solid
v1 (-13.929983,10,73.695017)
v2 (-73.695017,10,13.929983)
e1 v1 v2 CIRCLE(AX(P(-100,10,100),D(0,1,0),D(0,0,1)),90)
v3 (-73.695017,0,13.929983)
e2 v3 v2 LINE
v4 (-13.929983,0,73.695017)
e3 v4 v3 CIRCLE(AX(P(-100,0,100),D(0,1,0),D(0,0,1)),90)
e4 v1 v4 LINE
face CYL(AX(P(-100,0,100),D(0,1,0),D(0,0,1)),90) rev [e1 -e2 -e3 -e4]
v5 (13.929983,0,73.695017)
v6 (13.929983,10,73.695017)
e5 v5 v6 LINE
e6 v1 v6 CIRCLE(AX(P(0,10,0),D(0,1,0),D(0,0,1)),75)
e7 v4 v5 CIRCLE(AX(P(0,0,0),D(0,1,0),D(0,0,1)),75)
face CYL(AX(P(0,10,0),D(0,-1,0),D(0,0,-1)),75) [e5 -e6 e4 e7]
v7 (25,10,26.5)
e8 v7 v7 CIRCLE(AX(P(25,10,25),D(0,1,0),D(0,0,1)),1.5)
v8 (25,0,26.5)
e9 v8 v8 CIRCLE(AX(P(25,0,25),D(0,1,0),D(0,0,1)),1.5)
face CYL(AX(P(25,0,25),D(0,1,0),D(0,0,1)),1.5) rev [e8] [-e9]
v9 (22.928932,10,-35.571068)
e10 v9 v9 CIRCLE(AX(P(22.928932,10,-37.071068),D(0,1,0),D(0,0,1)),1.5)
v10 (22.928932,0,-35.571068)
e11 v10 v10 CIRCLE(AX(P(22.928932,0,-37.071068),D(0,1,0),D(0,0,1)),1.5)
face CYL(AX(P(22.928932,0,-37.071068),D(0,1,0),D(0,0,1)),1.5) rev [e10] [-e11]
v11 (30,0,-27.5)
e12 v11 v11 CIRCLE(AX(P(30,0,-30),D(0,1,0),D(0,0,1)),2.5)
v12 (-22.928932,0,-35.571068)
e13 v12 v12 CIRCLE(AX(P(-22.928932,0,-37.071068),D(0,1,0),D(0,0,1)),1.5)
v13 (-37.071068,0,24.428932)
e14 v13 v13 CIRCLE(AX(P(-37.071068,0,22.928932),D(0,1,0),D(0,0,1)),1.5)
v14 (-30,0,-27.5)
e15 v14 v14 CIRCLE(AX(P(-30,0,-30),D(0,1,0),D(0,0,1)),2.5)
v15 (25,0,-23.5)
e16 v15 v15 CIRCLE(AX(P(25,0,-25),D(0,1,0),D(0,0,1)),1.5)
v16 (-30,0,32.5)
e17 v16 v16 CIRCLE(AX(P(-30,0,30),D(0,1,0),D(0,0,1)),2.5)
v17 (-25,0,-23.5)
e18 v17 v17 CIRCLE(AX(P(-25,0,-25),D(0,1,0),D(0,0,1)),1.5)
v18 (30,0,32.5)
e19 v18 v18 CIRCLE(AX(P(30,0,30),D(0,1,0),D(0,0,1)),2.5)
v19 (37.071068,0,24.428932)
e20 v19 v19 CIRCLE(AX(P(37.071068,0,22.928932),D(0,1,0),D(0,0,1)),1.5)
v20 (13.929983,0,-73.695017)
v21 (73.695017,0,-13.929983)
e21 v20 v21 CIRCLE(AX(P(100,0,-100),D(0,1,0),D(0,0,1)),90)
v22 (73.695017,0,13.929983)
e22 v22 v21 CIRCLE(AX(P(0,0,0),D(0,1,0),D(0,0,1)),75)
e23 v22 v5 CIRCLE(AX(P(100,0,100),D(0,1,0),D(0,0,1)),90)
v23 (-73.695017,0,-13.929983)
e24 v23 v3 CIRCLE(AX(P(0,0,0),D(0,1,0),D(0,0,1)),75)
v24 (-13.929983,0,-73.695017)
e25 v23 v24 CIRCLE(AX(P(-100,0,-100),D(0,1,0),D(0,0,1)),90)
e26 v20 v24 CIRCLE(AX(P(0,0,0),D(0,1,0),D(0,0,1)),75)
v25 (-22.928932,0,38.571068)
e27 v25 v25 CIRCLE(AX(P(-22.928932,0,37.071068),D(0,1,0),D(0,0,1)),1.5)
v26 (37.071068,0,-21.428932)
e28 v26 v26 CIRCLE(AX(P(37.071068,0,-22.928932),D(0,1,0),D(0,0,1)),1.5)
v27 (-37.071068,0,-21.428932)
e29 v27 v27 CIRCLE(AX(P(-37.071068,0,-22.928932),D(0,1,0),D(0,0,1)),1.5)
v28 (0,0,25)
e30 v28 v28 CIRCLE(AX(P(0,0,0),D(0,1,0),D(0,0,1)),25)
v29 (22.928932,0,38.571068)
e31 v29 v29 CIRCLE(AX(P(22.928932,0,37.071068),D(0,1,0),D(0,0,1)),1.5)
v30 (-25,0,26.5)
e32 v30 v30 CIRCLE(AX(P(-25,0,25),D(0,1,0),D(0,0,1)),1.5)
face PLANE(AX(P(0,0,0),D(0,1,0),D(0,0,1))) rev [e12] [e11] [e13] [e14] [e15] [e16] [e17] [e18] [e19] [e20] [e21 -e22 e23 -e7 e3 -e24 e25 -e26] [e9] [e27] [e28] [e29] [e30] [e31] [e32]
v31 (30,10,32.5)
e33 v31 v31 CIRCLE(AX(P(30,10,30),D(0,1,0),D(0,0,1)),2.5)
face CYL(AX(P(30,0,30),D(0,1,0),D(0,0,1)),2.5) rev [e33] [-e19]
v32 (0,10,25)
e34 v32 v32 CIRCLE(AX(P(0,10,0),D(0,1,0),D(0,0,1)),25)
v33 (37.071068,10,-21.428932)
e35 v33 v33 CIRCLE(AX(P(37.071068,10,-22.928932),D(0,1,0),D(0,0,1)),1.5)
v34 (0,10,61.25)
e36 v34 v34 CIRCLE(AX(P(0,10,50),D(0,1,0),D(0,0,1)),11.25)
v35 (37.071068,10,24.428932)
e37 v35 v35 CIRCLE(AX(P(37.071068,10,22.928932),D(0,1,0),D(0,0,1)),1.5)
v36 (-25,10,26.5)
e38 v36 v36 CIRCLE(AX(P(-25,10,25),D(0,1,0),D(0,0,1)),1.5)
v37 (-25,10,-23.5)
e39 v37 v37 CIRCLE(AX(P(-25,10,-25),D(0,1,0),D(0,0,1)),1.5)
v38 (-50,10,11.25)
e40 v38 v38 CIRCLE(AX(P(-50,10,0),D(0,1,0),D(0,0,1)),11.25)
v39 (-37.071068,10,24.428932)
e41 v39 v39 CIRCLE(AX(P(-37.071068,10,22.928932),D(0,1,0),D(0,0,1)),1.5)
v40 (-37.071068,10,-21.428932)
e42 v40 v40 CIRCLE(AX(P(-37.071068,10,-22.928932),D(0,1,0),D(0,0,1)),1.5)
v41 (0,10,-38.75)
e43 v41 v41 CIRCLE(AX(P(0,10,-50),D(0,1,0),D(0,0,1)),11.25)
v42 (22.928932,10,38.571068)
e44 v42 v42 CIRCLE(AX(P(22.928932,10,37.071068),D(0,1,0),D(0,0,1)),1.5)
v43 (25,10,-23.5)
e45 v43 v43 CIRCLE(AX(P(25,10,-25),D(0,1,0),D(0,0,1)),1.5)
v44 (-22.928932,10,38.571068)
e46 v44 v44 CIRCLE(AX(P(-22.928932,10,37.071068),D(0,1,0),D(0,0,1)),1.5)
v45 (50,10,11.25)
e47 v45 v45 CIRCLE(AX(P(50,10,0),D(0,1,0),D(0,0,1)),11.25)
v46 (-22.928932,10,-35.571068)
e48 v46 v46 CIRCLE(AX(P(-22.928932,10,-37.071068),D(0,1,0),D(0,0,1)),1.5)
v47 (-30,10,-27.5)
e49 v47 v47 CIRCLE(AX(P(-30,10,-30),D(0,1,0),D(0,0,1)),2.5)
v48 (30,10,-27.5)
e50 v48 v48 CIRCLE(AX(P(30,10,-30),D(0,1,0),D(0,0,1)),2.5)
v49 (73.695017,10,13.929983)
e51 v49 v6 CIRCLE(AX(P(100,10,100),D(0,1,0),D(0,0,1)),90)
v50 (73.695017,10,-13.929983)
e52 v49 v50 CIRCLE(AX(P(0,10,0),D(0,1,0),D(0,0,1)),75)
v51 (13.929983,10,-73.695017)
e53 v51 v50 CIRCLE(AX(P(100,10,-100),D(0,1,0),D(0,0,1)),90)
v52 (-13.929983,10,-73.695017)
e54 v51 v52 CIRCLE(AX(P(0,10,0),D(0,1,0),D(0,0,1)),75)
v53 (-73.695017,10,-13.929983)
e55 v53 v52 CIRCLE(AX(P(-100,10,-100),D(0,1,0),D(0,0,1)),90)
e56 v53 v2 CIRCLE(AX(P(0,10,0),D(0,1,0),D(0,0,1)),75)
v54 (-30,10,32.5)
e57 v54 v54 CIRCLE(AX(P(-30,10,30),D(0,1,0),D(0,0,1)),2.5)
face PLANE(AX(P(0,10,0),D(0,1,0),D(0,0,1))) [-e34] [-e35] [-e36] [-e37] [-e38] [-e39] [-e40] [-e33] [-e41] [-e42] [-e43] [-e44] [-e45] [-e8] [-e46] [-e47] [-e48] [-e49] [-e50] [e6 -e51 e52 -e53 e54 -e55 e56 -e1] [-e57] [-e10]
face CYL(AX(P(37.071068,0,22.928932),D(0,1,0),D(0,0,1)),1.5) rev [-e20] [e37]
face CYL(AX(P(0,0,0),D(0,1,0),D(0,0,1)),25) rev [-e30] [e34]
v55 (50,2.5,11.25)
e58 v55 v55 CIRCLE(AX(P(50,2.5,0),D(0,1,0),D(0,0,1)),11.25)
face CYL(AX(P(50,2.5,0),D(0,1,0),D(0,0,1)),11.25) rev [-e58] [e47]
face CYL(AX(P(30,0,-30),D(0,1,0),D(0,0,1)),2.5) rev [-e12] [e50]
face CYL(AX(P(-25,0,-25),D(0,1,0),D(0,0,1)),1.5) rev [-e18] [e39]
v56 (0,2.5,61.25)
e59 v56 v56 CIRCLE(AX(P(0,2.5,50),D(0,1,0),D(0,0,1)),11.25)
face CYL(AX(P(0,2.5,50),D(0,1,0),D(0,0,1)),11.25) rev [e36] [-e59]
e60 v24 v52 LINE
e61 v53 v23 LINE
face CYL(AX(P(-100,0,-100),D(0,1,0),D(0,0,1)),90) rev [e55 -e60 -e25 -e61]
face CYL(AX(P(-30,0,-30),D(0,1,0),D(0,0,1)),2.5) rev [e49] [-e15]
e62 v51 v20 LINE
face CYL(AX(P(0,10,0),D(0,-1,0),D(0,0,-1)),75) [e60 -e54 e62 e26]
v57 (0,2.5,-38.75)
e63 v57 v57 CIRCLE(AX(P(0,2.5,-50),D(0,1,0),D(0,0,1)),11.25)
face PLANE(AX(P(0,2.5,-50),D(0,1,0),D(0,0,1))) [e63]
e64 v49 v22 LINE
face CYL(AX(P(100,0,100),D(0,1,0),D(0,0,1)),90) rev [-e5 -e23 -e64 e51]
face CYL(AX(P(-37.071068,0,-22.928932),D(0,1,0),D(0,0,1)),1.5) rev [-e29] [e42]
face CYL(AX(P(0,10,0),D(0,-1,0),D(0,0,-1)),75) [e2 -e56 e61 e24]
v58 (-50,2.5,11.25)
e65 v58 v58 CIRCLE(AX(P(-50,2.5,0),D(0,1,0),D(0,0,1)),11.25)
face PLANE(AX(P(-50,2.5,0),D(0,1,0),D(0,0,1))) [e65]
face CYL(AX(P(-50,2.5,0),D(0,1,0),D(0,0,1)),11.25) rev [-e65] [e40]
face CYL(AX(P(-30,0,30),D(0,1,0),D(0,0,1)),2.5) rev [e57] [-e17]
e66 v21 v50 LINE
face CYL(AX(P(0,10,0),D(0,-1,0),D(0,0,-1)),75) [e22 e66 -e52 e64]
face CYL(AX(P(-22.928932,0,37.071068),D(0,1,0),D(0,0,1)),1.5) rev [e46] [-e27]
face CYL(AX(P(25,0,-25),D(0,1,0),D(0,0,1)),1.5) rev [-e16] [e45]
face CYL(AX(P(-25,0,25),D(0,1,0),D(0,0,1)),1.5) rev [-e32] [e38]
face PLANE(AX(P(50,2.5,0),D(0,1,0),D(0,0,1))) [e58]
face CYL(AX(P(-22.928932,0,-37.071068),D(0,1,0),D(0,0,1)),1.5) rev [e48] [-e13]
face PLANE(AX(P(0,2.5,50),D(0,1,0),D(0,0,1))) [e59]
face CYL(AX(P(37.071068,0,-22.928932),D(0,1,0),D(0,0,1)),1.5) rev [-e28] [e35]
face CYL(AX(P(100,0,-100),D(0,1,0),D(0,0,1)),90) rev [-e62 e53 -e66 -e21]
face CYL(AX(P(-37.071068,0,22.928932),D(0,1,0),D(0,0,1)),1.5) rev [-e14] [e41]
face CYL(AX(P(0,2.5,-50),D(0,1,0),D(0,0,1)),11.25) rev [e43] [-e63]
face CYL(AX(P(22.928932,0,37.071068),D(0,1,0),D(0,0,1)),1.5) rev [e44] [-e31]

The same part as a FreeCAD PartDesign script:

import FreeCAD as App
import Part
import Sketcher
from FreeCAD import Vector

doc = App.newDocument("Part")
params = doc.addObject("Spreadsheet::Sheet", "Params")
for row, (alias, value) in enumerate([
    ("sketch1_diameter", "150 mm"),
    ("pad1_length", "10 mm"),
    ("sketch2_diameter", "180 mm"),
    ("pocket1_length", "10 mm"),
    ("sketch3_diameter", "5 mm"),
    ("sketch3_diameter2", "50 mm"),
    ("sketch3_diameter3", "3 mm"),
    ("pocket2_length", "10 mm"),
    ("sketch4_diameter", "3 mm"),
    ("pocket3_length", "10 mm"),
    ("sketch5_diameter", "22.5 mm"),
    ("pocket4_length", "7.5 mm"),
], start=1):
    params.set(f"A{row}", alias)
    params.set(f"B{row}", "=" + value)
    params.setAlias(f"B{row}", alias)

body = doc.addObject("PartDesign::Body", "Body")

# Sketch on XZ plane
sketch1 = body.newObject("Sketcher::SketchObject", "Sketch")
sketch1.AttachmentSupport = (doc.getObject("XZ_Plane"), [""])
sketch1.MapMode = "FlatFace"
sketch1.addGeometry(Part.Circle(Vector(0, 0, 0), Vector(0, 0, 1), 75), False)
sketch1.addConstraint([
    Sketcher.Constraint("Coincident", 0, 3, -1, 1),
    Sketcher.Constraint("Diameter", 0, 150.0),
])
sketch1.setExpression("Constraints[1]", "Params.sketch1_diameter")
pad1 = body.newObject("PartDesign::Pad", "Pad")
pad1.Profile = sketch1
pad1.setExpression("Length", "Params.pad1_length")
pad1.Reversed = True

# Sketch on XZ plane
sketch2 = body.newObject("Sketcher::SketchObject", "Sketch001")
sketch2.AttachmentSupport = (doc.getObject("XZ_Plane"), [""])
sketch2.MapMode = "FlatFace"
sketch2.AttachmentOffset = App.Placement(Vector(0, 0, -10), App.Rotation())
sketch2.addGeometry([
    Part.Circle(Vector(-100, -100, 0), Vector(0, 0, 1), 90),
    Part.Circle(Vector(100, -100, 0), Vector(0, 0, 1), 90),
    Part.Circle(Vector(100, 100, 0), Vector(0, 0, 1), 90),
    Part.Circle(Vector(-100, 100, 0), Vector(0, 0, 1), 90),
], False)
sketch2.addConstraint([
    Sketcher.Constraint("Equal", 0, 1),
    Sketcher.Constraint("Equal", 1, 2),
    Sketcher.Constraint("Equal", 2, 3),
    Sketcher.Constraint("Symmetric", 0, 3, 2, 3, -1, 1),
    Sketcher.Constraint("Symmetric", 1, 3, 3, 3, -1, 1),
    Sketcher.Constraint("Symmetric", 0, 3, 1, 3, -2),
    Sketcher.Constraint("Diameter", 0, 180.0),
    Sketcher.Constraint("DistanceX", 0, 3, -1, 1, 100.0),
    Sketcher.Constraint("DistanceY", 0, 3, -1, 1, 100.0),
])
sketch2.setExpression("Constraints[6]", "Params.sketch2_diameter")
pocket1 = body.newObject("PartDesign::Pocket", "Pocket")
pocket1.Profile = sketch2
pocket1.setExpression("Length", "Params.pocket1_length")
pocket1.Reversed = True

# Sketch on XZ plane
sketch3 = body.newObject("Sketcher::SketchObject", "Sketch002")
sketch3.AttachmentSupport = (doc.getObject("XZ_Plane"), [""])
sketch3.MapMode = "FlatFace"
sketch3.AttachmentOffset = App.Placement(Vector(0, 0, -10), App.Rotation())
sketch3.addGeometry([
    Part.Circle(Vector(-30, -30, 0), Vector(0, 0, 1), 2.5),  # 0
    Part.Circle(Vector(30, -30, 0), Vector(0, 0, 1), 2.5),  # 1
    Part.Circle(Vector(30, 30, 0), Vector(0, 0, 1), 2.5),  # 2
    Part.Circle(Vector(-30, 30, 0), Vector(0, 0, 1), 2.5),  # 3
    Part.Circle(Vector(0, 0, 0), Vector(0, 0, 1), 25),  # 4
    Part.Circle(Vector(-37.1, 22.9, 0), Vector(0, 0, 1), 1.5),  # 5
    Part.Circle(Vector(-22.9, 37.1, 0), Vector(0, 0, 1), 1.5),  # 6
    Part.Circle(Vector(22.9, 37.1, 0), Vector(0, 0, 1), 1.5),  # 7
    Part.Circle(Vector(37.1, 22.9, 0), Vector(0, 0, 1), 1.5),  # 8
    Part.Circle(Vector(37.1, -22.9, 0), Vector(0, 0, 1), 1.5),  # 9
    Part.Circle(Vector(22.9, -37.1, 0), Vector(0, 0, 1), 1.5),  # 10
    Part.Circle(Vector(-22.9, -37.1, 0), Vector(0, 0, 1), 1.5),  # 11
    Part.Circle(Vector(-37.1, -22.9, 0), Vector(0, 0, 1), 1.5),  # 12
], False)
sketch3.addConstraint([
    Sketcher.Constraint("Coincident", 4, 3, -1, 1),
    Sketcher.Constraint("Equal", 0, 1),
    Sketcher.Constraint("Equal", 1, 2),
    Sketcher.Constraint("Equal", 2, 3),
    Sketcher.Constraint("Equal", 5, 6),
    Sketcher.Constraint("Equal", 6, 7),
    Sketcher.Constraint("Equal", 7, 8),
    Sketcher.Constraint("Equal", 8, 9),
    Sketcher.Constraint("Equal", 9, 10),
    Sketcher.Constraint("Equal", 10, 11),
    Sketcher.Constraint("Equal", 11, 12),
    Sketcher.Constraint("Symmetric", 0, 3, 2, 3, -1, 1),
    Sketcher.Constraint("Symmetric", 1, 3, 3, 3, -1, 1),
    Sketcher.Constraint("Symmetric", 5, 3, 9, 3, -1, 1),
    Sketcher.Constraint("Symmetric", 6, 3, 10, 3, -1, 1),
    Sketcher.Constraint("Symmetric", 7, 3, 11, 3, -1, 1),
    Sketcher.Constraint("Symmetric", 8, 3, 12, 3, -1, 1),
    Sketcher.Constraint("Symmetric", 0, 3, 1, 3, -2),
    Sketcher.Constraint("Symmetric", 6, 3, 7, 3, -2),
    Sketcher.Constraint("Symmetric", 5, 3, 8, 3, -2),
    Sketcher.Constraint("Diameter", 0, 5.0),
    Sketcher.Constraint("Diameter", 4, 50.0),
    Sketcher.Constraint("Diameter", 5, 3.0),
    Sketcher.Constraint("DistanceX", 0, 3, -1, 1, 30.0),
    Sketcher.Constraint("DistanceY", 0, 3, -1, 1, 30.0),
    Sketcher.Constraint("DistanceX", 5, 3, 7, 3, 60.0),
    Sketcher.Constraint("DistanceY", 9, 3, 7, 3, 60.0),
    Sketcher.Constraint("DistanceX", 5, 3, -1, 1, 37.071068),
    Sketcher.Constraint("DistanceY", -1, 1, 5, 3, 22.928932),
])
sketch3.setExpression("Constraints[20]", "Params.sketch3_diameter")
sketch3.setExpression("Constraints[21]", "Params.sketch3_diameter2")
sketch3.setExpression("Constraints[22]", "Params.sketch3_diameter3")
pocket2 = body.newObject("PartDesign::Pocket", "Pocket001")
pocket2.Profile = sketch3
pocket2.setExpression("Length", "Params.pocket2_length")
pocket2.Reversed = True

# Sketch on XZ plane
sketch4 = body.newObject("Sketcher::SketchObject", "Sketch003")
sketch4.AttachmentSupport = (doc.getObject("XZ_Plane"), [""])
sketch4.MapMode = "FlatFace"
sketch4.AttachmentOffset = App.Placement(Vector(0, 0, -10), App.Rotation())
sketch4.addGeometry([
    Part.Circle(Vector(-25, -25, 0), Vector(0, 0, 1), 1.5),
    Part.Circle(Vector(25, -25, 0), Vector(0, 0, 1), 1.5),
    Part.Circle(Vector(25, 25, 0), Vector(0, 0, 1), 1.5),
    Part.Circle(Vector(-25, 25, 0), Vector(0, 0, 1), 1.5),
], False)
sketch4.addConstraint([
    Sketcher.Constraint("Equal", 0, 1),
    Sketcher.Constraint("Equal", 1, 2),
    Sketcher.Constraint("Equal", 2, 3),
    Sketcher.Constraint("Symmetric", 0, 3, 2, 3, -1, 1),
    Sketcher.Constraint("Symmetric", 1, 3, 3, 3, -1, 1),
    Sketcher.Constraint("Symmetric", 0, 3, 1, 3, -2),
    Sketcher.Constraint("Diameter", 0, 3.0),
    Sketcher.Constraint("DistanceX", 0, 3, -1, 1, 25.0),
    Sketcher.Constraint("DistanceY", 0, 3, -1, 1, 25.0),
])
sketch4.setExpression("Constraints[6]", "Params.sketch4_diameter")
pocket3 = body.newObject("PartDesign::Pocket", "Pocket002")
pocket3.Profile = sketch4
pocket3.setExpression("Length", "Params.pocket3_length")
pocket3.Reversed = True

# Sketch on XZ plane
sketch5 = body.newObject("Sketcher::SketchObject", "Sketch004")
sketch5.AttachmentSupport = (doc.getObject("XZ_Plane"), [""])
sketch5.MapMode = "FlatFace"
sketch5.AttachmentOffset = App.Placement(Vector(0, 0, -10), App.Rotation())
sketch5.addGeometry([
    Part.Circle(Vector(-50, 0, 0), Vector(0, 0, 1), 11),
    Part.Circle(Vector(0, -50, 0), Vector(0, 0, 1), 11),
    Part.Circle(Vector(50, 0, 0), Vector(0, 0, 1), 11),
    Part.Circle(Vector(0, 50, 0), Vector(0, 0, 1), 11),
], False)
sketch5.addConstraint([
    Sketcher.Constraint("Equal", 0, 1),
    Sketcher.Constraint("Equal", 1, 2),
    Sketcher.Constraint("Equal", 2, 3),
    Sketcher.Constraint("Symmetric", 0, 3, 2, 3, -1, 1),
    Sketcher.Constraint("Symmetric", 1, 3, 3, 3, -1, 1),
    Sketcher.Constraint("PointOnObject", 0, 3, -1),
    Sketcher.Constraint("PointOnObject", 1, 3, -2),
    Sketcher.Constraint("Diameter", 0, 22.5),
    Sketcher.Constraint("DistanceX", 0, 3, -1, 1, 50.0),
    Sketcher.Constraint("DistanceY", 1, 3, -1, 1, 50.0),
])
sketch5.setExpression("Constraints[7]", "Params.sketch5_diameter")
pocket4 = body.newObject("PartDesign::Pocket", "Pocket003")
pocket4.Profile = sketch5
pocket4.setExpression("Length", "Params.pocket4_length")
pocket4.Reversed = True

doc.recompute()
